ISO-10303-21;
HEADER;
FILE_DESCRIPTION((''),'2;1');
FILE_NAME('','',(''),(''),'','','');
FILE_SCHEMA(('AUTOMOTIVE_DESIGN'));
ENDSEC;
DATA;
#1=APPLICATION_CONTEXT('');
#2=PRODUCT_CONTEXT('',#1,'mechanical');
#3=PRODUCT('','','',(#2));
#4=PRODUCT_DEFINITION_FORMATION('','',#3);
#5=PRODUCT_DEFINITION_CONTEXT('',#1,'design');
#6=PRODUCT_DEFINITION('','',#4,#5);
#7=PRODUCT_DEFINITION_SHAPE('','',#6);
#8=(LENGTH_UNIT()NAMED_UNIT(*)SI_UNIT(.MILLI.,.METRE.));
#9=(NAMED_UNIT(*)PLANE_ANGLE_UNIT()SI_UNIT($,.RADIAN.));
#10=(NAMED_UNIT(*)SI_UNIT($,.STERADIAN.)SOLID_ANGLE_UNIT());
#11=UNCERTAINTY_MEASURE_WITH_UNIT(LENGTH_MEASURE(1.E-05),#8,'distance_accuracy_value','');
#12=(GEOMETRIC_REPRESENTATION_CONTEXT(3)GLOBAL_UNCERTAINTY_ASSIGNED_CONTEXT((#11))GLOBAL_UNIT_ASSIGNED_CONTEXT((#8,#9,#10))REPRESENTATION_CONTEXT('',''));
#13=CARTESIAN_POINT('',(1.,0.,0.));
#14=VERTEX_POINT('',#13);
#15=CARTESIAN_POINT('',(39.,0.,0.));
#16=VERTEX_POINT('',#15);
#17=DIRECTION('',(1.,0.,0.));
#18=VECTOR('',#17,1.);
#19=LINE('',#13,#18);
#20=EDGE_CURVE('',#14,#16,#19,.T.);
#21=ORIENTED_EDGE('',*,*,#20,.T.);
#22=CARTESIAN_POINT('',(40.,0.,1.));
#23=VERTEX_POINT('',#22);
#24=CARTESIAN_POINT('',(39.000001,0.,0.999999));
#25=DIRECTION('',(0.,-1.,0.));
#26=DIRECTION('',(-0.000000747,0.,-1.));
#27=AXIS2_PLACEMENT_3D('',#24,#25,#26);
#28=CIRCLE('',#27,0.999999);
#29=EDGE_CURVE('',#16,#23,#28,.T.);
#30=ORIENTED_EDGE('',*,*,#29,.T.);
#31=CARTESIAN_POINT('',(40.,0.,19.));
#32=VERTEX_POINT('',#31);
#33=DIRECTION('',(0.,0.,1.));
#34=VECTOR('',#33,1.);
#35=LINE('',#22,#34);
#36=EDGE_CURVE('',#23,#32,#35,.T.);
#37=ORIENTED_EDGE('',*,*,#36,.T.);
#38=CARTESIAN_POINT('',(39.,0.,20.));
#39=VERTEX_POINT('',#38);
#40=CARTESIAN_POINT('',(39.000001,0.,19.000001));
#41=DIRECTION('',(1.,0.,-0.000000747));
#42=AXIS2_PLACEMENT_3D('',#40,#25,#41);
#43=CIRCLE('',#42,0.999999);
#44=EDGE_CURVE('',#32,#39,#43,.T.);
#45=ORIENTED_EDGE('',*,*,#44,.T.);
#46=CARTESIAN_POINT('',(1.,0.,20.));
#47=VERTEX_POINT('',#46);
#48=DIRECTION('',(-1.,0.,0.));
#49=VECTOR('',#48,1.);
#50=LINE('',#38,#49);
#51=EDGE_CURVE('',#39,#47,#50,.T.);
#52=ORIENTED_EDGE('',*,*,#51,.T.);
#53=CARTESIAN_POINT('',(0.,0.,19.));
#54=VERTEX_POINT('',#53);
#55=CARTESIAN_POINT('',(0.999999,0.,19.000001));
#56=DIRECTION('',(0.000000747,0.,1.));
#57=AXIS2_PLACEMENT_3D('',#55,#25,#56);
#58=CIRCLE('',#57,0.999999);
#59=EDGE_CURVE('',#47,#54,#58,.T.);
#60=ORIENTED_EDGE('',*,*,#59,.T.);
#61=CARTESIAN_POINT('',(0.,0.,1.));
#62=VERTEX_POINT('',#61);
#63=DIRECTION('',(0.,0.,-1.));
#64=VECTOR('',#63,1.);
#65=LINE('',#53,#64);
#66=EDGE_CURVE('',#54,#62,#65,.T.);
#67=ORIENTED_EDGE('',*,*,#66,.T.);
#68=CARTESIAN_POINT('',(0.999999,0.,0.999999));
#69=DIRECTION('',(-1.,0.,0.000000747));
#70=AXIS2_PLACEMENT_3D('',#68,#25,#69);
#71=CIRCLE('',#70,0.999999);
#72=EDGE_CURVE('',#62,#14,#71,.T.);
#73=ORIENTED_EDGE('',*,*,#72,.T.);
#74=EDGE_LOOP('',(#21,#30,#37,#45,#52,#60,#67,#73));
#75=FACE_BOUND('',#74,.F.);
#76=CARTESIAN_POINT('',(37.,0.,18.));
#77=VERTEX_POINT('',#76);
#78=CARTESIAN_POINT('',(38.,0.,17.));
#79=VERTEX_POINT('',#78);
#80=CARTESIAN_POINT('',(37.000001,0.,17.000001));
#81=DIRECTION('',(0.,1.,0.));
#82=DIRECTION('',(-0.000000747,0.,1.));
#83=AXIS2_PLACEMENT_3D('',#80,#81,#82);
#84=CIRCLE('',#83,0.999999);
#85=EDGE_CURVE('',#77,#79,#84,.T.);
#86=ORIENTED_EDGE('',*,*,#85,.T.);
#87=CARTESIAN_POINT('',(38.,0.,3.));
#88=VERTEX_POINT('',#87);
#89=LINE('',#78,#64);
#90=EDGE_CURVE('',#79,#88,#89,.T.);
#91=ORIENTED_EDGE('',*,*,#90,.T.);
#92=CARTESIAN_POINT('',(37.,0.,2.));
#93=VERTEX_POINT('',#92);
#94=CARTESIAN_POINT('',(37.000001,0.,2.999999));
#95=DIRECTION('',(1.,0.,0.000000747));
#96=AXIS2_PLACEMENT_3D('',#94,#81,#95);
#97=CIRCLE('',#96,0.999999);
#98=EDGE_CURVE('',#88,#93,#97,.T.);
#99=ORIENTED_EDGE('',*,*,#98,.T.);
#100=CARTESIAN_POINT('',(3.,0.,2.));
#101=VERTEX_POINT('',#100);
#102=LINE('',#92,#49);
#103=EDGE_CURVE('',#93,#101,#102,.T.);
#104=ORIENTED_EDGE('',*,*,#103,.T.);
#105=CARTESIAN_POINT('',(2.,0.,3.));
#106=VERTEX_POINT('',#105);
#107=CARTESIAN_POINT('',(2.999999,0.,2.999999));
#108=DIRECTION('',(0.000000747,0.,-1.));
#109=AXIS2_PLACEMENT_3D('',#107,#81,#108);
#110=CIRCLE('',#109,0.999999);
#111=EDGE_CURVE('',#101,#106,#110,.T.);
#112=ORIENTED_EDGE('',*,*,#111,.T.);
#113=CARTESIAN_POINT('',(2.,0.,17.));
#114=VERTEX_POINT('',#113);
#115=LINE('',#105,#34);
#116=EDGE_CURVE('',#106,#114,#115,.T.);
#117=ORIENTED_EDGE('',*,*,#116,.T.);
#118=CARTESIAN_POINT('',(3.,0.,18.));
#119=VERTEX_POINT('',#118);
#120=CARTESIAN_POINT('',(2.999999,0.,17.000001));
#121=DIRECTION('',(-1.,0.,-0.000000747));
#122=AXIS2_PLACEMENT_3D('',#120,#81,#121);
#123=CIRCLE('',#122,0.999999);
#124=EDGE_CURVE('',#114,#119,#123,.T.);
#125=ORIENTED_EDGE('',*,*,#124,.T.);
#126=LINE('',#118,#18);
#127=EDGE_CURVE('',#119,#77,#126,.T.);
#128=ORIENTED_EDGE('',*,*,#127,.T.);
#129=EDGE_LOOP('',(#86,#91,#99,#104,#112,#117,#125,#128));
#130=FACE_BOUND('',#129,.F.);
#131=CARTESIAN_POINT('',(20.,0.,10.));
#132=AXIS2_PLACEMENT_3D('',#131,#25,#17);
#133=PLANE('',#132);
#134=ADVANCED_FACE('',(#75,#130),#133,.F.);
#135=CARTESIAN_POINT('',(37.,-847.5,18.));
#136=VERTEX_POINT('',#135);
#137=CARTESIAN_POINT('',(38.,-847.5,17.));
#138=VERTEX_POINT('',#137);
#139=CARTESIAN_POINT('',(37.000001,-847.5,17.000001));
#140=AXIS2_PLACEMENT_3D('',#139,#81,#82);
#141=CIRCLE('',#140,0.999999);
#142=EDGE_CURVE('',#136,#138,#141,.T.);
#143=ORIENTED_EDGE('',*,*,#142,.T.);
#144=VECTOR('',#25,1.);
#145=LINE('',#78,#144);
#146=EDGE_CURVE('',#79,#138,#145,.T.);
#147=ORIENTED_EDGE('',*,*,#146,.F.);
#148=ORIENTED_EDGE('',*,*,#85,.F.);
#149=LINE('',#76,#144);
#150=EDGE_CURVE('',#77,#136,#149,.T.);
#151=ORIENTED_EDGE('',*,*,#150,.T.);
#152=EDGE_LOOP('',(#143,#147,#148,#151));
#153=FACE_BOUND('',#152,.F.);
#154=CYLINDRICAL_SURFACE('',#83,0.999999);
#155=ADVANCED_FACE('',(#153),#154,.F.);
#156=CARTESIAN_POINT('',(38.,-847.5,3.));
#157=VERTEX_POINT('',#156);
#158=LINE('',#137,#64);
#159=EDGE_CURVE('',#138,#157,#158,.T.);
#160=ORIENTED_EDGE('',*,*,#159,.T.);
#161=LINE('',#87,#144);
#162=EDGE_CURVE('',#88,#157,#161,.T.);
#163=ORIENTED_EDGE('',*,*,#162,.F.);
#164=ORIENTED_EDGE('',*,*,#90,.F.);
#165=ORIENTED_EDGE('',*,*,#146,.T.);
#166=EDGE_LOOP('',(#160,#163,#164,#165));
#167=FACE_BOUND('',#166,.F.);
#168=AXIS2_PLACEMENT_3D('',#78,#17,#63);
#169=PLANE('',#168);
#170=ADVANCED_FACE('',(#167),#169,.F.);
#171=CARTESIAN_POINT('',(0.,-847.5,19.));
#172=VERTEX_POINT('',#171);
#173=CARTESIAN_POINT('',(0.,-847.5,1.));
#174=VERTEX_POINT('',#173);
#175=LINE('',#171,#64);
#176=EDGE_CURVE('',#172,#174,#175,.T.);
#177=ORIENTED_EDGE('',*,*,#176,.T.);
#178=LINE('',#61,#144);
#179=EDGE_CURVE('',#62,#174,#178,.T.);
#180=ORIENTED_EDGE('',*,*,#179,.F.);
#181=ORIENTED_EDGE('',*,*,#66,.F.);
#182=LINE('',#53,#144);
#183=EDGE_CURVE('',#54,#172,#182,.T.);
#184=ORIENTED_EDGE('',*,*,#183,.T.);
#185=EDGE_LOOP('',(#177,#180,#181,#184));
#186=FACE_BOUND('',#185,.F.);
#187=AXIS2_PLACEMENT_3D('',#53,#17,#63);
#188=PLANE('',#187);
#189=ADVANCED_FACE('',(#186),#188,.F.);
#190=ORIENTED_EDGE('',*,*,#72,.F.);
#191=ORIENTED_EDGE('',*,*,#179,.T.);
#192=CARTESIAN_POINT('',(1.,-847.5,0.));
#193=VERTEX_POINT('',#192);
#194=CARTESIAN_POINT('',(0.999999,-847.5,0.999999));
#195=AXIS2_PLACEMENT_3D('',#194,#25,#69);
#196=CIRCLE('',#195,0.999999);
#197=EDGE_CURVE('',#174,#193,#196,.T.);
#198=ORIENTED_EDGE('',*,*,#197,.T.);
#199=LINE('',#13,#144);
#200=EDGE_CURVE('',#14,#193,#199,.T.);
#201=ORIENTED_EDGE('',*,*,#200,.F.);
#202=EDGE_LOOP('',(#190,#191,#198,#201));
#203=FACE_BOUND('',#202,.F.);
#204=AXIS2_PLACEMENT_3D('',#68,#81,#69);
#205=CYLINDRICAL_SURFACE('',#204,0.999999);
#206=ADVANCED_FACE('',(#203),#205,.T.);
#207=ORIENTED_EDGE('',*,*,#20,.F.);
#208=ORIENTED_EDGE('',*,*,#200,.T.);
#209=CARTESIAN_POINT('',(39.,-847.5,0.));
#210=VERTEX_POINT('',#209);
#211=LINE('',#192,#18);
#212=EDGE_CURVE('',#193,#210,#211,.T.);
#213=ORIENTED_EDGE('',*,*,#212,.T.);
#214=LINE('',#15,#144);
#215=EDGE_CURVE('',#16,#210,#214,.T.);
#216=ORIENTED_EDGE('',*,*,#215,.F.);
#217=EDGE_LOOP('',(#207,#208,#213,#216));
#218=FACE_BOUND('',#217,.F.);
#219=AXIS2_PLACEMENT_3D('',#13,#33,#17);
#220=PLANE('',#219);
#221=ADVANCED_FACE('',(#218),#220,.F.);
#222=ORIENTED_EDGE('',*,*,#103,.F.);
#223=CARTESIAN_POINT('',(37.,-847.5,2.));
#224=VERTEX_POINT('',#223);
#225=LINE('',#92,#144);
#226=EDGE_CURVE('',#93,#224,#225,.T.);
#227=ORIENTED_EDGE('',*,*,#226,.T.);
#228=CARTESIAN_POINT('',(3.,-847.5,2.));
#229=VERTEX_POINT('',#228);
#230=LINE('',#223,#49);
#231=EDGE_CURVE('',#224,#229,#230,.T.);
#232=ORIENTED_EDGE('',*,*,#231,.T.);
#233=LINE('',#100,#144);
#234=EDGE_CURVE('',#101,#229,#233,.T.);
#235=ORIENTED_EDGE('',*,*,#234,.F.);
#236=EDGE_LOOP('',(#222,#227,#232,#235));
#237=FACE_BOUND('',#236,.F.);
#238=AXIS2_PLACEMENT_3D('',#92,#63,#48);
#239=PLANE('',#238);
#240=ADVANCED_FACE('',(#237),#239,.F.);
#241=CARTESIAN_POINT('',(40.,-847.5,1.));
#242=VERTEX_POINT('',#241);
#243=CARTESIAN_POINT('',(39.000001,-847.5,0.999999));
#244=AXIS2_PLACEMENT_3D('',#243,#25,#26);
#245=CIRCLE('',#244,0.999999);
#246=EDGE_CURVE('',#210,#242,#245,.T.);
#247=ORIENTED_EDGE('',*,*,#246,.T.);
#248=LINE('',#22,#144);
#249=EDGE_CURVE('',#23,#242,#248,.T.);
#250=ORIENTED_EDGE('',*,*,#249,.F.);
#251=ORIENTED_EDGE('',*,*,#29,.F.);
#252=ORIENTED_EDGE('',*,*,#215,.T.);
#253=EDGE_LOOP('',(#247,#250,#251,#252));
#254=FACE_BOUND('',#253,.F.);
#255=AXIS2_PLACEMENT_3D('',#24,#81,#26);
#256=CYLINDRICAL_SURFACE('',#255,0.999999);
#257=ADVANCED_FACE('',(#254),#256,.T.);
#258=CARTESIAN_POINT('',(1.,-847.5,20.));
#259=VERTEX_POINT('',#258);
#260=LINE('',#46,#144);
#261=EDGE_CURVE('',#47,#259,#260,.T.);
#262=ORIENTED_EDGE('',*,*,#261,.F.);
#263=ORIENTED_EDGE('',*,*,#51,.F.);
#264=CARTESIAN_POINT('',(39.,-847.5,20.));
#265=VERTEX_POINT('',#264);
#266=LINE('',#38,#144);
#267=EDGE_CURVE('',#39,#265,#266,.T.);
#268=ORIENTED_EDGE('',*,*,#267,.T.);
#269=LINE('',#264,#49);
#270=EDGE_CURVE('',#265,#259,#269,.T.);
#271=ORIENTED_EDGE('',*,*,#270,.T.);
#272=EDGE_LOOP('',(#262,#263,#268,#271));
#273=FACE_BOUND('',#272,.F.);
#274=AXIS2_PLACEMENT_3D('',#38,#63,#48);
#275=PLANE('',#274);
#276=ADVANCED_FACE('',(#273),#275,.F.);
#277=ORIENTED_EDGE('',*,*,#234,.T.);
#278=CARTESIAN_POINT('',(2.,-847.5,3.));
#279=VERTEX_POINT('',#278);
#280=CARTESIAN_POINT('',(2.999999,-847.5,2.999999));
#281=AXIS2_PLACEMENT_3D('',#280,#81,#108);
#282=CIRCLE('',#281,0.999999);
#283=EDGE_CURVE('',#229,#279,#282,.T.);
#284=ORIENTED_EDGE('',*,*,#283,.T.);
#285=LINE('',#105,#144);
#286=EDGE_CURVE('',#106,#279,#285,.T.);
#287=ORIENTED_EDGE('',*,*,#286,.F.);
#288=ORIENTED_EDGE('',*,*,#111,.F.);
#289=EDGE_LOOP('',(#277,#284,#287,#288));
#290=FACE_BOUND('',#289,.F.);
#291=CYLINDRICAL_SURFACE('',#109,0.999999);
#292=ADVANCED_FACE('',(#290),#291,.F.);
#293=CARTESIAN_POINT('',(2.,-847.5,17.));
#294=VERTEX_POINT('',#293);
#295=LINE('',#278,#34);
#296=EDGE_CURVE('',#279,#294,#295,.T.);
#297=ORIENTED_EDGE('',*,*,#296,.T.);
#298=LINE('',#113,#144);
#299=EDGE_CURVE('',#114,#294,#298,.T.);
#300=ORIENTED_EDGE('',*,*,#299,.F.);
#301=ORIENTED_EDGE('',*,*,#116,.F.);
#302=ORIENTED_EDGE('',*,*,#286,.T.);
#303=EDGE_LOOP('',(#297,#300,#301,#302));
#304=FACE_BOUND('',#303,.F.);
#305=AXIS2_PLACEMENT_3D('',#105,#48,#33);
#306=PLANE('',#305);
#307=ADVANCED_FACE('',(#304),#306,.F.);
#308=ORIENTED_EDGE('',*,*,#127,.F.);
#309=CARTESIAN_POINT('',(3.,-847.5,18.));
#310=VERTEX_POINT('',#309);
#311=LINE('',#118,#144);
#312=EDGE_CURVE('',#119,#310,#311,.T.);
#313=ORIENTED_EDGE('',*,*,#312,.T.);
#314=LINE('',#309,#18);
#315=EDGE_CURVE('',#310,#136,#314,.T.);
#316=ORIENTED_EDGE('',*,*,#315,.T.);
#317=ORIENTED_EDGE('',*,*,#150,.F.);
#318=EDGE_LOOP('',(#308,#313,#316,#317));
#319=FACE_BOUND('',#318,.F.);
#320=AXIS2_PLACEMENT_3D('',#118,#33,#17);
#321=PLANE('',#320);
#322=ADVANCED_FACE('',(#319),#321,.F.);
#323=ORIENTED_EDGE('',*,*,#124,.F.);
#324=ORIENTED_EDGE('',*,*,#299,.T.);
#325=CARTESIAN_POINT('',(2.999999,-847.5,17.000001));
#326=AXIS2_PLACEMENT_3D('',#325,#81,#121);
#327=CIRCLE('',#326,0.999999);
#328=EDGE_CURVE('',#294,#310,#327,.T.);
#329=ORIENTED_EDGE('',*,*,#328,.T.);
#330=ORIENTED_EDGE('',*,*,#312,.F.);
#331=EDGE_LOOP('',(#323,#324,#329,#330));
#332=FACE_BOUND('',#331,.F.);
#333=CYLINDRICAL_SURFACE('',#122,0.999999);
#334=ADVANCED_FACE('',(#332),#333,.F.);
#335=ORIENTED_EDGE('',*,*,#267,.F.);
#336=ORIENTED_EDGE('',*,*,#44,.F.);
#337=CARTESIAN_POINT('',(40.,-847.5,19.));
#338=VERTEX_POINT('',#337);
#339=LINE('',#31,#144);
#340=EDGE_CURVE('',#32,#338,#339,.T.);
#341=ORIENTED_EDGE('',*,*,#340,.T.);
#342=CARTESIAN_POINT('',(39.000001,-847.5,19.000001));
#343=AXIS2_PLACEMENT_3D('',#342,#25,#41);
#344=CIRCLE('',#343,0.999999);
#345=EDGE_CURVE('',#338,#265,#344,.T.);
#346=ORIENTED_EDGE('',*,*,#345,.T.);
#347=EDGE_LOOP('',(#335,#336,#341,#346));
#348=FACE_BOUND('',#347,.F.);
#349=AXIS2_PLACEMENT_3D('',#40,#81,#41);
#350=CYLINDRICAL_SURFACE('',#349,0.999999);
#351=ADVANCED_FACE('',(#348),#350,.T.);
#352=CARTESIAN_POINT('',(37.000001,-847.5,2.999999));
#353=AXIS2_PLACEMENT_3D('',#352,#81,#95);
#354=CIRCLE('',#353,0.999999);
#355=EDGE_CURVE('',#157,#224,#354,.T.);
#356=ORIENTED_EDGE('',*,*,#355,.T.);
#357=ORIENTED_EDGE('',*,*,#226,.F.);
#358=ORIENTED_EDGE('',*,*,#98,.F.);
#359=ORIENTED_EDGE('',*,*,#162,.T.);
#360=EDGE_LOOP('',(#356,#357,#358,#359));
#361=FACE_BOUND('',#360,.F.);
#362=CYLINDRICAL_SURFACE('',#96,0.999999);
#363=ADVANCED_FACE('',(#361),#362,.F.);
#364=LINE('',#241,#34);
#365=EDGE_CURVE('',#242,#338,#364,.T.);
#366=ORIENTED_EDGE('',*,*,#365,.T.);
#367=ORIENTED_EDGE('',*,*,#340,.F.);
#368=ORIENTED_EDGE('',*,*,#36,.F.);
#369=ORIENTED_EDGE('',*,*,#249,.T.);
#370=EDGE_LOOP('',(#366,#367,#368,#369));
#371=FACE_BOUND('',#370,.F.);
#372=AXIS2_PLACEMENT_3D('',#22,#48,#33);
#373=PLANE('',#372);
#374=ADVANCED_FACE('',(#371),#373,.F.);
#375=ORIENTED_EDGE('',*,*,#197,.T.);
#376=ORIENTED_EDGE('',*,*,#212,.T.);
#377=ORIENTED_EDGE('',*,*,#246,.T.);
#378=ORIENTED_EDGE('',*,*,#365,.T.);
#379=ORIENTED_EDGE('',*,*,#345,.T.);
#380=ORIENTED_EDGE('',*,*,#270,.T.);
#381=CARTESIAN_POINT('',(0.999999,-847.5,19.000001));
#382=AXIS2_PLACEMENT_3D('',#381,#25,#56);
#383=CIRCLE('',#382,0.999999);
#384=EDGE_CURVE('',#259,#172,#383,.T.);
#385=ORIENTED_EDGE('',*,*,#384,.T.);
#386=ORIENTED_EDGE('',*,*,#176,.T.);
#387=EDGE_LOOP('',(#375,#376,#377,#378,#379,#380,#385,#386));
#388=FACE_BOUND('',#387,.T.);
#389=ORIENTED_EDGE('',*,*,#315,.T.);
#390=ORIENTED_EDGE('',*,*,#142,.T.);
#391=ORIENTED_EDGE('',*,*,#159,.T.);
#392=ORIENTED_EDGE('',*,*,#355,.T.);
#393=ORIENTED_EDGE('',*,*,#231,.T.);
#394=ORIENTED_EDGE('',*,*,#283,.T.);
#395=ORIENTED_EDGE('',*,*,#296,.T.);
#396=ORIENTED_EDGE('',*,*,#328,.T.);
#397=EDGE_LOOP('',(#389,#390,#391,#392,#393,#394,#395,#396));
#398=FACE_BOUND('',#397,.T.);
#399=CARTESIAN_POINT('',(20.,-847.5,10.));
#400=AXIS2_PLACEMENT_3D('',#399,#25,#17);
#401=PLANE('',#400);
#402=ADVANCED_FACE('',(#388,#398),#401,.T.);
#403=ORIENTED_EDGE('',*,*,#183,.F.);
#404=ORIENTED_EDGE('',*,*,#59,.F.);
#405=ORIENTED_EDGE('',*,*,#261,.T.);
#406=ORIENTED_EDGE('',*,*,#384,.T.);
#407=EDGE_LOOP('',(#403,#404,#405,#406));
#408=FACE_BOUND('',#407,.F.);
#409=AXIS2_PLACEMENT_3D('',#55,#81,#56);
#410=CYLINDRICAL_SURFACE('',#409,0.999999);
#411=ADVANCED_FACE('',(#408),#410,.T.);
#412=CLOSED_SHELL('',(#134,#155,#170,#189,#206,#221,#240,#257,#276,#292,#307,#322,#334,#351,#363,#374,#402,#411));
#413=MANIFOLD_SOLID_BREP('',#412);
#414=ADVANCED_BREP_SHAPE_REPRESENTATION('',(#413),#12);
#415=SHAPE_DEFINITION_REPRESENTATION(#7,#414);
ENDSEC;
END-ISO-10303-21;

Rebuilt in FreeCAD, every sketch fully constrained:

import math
import FreeCAD as App
import Part
import Sketcher
from FreeCAD import Vector

doc = App.newDocument("Part")
body = doc.addObject("PartDesign::Body", "Body")

# Sketch on XZ plane
sketch1 = doc.addObject("Sketcher::SketchObject", "Sketch")
body.addObject(sketch1)
sketch1.AttachmentSupport = (doc.XZ_Plane, [""])
sketch1.MapMode = "FlatFace"
sketch1.addGeometry([
    Part.ArcOfCircle(Part.Circle(Vector(1, 1, 0), Vector(0, 0, 1), 1), math.radians(180), math.radians(270)),  # 0
    Part.LineSegment(Vector(1, 0, 0), Vector(39, 0, 0)),  # 1
    Part.ArcOfCircle(Part.Circle(Vector(39, 1, 0), Vector(0, 0, 1), 1), math.radians(-90), math.radians(0)),  # 2
    Part.LineSegment(Vector(40, 1, 0), Vector(40, 19, 0)),  # 3
    Part.ArcOfCircle(Part.Circle(Vector(39, 19, 0), Vector(0, 0, 1), 1), math.radians(0), math.radians(90)),  # 4
    Part.LineSegment(Vector(39, 20, 0), Vector(1, 20, 0)),  # 5
    Part.ArcOfCircle(Part.Circle(Vector(1, 19, 0), Vector(0, 0, 1), 1), math.radians(90), math.radians(180)),  # 6
    Part.LineSegment(Vector(0, 19, 0), Vector(0, 1, 0)),  # 7
    Part.ArcOfCircle(Part.Circle(Vector(37, 3, 0), Vector(0, 0, 1), 1), math.radians(-90), math.radians(0)),  # 8
    Part.LineSegment(Vector(37, 2, 0), Vector(3, 2, 0)),  # 9
    Part.ArcOfCircle(Part.Circle(Vector(3, 3, 0), Vector(0, 0, 1), 1), math.radians(180), math.radians(270)),  # 10
    Part.LineSegment(Vector(2, 3, 0), Vector(2, 17, 0)),  # 11
    Part.ArcOfCircle(Part.Circle(Vector(3, 17, 0), Vector(0, 0, 1), 1), math.radians(90), math.radians(180)),  # 12
    Part.LineSegment(Vector(3, 18, 0), Vector(37, 18, 0)),  # 13
    Part.ArcOfCircle(Part.Circle(Vector(37, 17, 0), Vector(0, 0, 1), 1), math.radians(0), math.radians(90)),  # 14
    Part.LineSegment(Vector(38, 17, 0), Vector(38, 3, 0)),  # 15
], False)
sketch1.addConstraint([
    Sketcher.Constraint("Tangent", 0, 2, 1, 1),
    Sketcher.Constraint("Tangent", 1, 2, 2, 1),
    Sketcher.Constraint("Tangent", 2, 2, 3, 1),
    Sketcher.Constraint("Tangent", 3, 2, 4, 1),
    Sketcher.Constraint("Tangent", 4, 2, 5, 1),
    Sketcher.Constraint("Tangent", 5, 2, 6, 1),
    Sketcher.Constraint("Tangent", 6, 2, 7, 1),
    Sketcher.Constraint("Tangent", 7, 2, 0, 1),
    Sketcher.Constraint("Tangent", 8, 1, 9, 1),
    Sketcher.Constraint("Tangent", 9, 2, 10, 2),
    Sketcher.Constraint("Tangent", 10, 1, 11, 1),
    Sketcher.Constraint("Tangent", 11, 2, 12, 2),
    Sketcher.Constraint("Tangent", 12, 1, 13, 1),
    Sketcher.Constraint("Tangent", 13, 2, 14, 2),
    Sketcher.Constraint("Tangent", 14, 1, 15, 1),
    Sketcher.Constraint("Tangent", 15, 2, 8, 2),
    Sketcher.Constraint("Horizontal", 1),
    Sketcher.Constraint("Vertical", 3),
    Sketcher.Constraint("Horizontal", 5),
    Sketcher.Constraint("Vertical", 7),
    Sketcher.Constraint("Horizontal", 9),
    Sketcher.Constraint("Vertical", 11),
    Sketcher.Constraint("Horizontal", 13),
    Sketcher.Constraint("Vertical", 15),
    Sketcher.Constraint("Equal", 0, 2),
    Sketcher.Constraint("Equal", 2, 4),
    Sketcher.Constraint("Equal", 4, 6),
    Sketcher.Constraint("Equal", 6, 8),
    Sketcher.Constraint("Equal", 8, 10),
    Sketcher.Constraint("Equal", 10, 12),
    Sketcher.Constraint("Equal", 12, 14),
    Sketcher.Constraint("PointOnObject", 0, 2, -1),
    Sketcher.Constraint("PointOnObject", 6, 2, -2),
    Sketcher.Constraint("Radius", 0, 0.999999),
    Sketcher.Constraint("DistanceX", 1, 1, 1, 2, 38.0),
    Sketcher.Constraint("DistanceX", 9, 2, 9, 1, 34.0),
    Sketcher.Constraint("DistanceY", 3, 1, 3, 2, 18.0),
    Sketcher.Constraint("DistanceY", 11, 1, 11, 2, 14.0),
    Sketcher.Constraint("DistanceX", -1, 1, 8, 3, 37.000001),
    Sketcher.Constraint("DistanceY", -1, 1, 8, 3, 2.999999),
])
pad1 = doc.addObject("PartDesign::Pad", "Pad")
body.addObject(pad1)
pad1.Profile = sketch1
pad1.Length = 847.5

doc.recompute()
